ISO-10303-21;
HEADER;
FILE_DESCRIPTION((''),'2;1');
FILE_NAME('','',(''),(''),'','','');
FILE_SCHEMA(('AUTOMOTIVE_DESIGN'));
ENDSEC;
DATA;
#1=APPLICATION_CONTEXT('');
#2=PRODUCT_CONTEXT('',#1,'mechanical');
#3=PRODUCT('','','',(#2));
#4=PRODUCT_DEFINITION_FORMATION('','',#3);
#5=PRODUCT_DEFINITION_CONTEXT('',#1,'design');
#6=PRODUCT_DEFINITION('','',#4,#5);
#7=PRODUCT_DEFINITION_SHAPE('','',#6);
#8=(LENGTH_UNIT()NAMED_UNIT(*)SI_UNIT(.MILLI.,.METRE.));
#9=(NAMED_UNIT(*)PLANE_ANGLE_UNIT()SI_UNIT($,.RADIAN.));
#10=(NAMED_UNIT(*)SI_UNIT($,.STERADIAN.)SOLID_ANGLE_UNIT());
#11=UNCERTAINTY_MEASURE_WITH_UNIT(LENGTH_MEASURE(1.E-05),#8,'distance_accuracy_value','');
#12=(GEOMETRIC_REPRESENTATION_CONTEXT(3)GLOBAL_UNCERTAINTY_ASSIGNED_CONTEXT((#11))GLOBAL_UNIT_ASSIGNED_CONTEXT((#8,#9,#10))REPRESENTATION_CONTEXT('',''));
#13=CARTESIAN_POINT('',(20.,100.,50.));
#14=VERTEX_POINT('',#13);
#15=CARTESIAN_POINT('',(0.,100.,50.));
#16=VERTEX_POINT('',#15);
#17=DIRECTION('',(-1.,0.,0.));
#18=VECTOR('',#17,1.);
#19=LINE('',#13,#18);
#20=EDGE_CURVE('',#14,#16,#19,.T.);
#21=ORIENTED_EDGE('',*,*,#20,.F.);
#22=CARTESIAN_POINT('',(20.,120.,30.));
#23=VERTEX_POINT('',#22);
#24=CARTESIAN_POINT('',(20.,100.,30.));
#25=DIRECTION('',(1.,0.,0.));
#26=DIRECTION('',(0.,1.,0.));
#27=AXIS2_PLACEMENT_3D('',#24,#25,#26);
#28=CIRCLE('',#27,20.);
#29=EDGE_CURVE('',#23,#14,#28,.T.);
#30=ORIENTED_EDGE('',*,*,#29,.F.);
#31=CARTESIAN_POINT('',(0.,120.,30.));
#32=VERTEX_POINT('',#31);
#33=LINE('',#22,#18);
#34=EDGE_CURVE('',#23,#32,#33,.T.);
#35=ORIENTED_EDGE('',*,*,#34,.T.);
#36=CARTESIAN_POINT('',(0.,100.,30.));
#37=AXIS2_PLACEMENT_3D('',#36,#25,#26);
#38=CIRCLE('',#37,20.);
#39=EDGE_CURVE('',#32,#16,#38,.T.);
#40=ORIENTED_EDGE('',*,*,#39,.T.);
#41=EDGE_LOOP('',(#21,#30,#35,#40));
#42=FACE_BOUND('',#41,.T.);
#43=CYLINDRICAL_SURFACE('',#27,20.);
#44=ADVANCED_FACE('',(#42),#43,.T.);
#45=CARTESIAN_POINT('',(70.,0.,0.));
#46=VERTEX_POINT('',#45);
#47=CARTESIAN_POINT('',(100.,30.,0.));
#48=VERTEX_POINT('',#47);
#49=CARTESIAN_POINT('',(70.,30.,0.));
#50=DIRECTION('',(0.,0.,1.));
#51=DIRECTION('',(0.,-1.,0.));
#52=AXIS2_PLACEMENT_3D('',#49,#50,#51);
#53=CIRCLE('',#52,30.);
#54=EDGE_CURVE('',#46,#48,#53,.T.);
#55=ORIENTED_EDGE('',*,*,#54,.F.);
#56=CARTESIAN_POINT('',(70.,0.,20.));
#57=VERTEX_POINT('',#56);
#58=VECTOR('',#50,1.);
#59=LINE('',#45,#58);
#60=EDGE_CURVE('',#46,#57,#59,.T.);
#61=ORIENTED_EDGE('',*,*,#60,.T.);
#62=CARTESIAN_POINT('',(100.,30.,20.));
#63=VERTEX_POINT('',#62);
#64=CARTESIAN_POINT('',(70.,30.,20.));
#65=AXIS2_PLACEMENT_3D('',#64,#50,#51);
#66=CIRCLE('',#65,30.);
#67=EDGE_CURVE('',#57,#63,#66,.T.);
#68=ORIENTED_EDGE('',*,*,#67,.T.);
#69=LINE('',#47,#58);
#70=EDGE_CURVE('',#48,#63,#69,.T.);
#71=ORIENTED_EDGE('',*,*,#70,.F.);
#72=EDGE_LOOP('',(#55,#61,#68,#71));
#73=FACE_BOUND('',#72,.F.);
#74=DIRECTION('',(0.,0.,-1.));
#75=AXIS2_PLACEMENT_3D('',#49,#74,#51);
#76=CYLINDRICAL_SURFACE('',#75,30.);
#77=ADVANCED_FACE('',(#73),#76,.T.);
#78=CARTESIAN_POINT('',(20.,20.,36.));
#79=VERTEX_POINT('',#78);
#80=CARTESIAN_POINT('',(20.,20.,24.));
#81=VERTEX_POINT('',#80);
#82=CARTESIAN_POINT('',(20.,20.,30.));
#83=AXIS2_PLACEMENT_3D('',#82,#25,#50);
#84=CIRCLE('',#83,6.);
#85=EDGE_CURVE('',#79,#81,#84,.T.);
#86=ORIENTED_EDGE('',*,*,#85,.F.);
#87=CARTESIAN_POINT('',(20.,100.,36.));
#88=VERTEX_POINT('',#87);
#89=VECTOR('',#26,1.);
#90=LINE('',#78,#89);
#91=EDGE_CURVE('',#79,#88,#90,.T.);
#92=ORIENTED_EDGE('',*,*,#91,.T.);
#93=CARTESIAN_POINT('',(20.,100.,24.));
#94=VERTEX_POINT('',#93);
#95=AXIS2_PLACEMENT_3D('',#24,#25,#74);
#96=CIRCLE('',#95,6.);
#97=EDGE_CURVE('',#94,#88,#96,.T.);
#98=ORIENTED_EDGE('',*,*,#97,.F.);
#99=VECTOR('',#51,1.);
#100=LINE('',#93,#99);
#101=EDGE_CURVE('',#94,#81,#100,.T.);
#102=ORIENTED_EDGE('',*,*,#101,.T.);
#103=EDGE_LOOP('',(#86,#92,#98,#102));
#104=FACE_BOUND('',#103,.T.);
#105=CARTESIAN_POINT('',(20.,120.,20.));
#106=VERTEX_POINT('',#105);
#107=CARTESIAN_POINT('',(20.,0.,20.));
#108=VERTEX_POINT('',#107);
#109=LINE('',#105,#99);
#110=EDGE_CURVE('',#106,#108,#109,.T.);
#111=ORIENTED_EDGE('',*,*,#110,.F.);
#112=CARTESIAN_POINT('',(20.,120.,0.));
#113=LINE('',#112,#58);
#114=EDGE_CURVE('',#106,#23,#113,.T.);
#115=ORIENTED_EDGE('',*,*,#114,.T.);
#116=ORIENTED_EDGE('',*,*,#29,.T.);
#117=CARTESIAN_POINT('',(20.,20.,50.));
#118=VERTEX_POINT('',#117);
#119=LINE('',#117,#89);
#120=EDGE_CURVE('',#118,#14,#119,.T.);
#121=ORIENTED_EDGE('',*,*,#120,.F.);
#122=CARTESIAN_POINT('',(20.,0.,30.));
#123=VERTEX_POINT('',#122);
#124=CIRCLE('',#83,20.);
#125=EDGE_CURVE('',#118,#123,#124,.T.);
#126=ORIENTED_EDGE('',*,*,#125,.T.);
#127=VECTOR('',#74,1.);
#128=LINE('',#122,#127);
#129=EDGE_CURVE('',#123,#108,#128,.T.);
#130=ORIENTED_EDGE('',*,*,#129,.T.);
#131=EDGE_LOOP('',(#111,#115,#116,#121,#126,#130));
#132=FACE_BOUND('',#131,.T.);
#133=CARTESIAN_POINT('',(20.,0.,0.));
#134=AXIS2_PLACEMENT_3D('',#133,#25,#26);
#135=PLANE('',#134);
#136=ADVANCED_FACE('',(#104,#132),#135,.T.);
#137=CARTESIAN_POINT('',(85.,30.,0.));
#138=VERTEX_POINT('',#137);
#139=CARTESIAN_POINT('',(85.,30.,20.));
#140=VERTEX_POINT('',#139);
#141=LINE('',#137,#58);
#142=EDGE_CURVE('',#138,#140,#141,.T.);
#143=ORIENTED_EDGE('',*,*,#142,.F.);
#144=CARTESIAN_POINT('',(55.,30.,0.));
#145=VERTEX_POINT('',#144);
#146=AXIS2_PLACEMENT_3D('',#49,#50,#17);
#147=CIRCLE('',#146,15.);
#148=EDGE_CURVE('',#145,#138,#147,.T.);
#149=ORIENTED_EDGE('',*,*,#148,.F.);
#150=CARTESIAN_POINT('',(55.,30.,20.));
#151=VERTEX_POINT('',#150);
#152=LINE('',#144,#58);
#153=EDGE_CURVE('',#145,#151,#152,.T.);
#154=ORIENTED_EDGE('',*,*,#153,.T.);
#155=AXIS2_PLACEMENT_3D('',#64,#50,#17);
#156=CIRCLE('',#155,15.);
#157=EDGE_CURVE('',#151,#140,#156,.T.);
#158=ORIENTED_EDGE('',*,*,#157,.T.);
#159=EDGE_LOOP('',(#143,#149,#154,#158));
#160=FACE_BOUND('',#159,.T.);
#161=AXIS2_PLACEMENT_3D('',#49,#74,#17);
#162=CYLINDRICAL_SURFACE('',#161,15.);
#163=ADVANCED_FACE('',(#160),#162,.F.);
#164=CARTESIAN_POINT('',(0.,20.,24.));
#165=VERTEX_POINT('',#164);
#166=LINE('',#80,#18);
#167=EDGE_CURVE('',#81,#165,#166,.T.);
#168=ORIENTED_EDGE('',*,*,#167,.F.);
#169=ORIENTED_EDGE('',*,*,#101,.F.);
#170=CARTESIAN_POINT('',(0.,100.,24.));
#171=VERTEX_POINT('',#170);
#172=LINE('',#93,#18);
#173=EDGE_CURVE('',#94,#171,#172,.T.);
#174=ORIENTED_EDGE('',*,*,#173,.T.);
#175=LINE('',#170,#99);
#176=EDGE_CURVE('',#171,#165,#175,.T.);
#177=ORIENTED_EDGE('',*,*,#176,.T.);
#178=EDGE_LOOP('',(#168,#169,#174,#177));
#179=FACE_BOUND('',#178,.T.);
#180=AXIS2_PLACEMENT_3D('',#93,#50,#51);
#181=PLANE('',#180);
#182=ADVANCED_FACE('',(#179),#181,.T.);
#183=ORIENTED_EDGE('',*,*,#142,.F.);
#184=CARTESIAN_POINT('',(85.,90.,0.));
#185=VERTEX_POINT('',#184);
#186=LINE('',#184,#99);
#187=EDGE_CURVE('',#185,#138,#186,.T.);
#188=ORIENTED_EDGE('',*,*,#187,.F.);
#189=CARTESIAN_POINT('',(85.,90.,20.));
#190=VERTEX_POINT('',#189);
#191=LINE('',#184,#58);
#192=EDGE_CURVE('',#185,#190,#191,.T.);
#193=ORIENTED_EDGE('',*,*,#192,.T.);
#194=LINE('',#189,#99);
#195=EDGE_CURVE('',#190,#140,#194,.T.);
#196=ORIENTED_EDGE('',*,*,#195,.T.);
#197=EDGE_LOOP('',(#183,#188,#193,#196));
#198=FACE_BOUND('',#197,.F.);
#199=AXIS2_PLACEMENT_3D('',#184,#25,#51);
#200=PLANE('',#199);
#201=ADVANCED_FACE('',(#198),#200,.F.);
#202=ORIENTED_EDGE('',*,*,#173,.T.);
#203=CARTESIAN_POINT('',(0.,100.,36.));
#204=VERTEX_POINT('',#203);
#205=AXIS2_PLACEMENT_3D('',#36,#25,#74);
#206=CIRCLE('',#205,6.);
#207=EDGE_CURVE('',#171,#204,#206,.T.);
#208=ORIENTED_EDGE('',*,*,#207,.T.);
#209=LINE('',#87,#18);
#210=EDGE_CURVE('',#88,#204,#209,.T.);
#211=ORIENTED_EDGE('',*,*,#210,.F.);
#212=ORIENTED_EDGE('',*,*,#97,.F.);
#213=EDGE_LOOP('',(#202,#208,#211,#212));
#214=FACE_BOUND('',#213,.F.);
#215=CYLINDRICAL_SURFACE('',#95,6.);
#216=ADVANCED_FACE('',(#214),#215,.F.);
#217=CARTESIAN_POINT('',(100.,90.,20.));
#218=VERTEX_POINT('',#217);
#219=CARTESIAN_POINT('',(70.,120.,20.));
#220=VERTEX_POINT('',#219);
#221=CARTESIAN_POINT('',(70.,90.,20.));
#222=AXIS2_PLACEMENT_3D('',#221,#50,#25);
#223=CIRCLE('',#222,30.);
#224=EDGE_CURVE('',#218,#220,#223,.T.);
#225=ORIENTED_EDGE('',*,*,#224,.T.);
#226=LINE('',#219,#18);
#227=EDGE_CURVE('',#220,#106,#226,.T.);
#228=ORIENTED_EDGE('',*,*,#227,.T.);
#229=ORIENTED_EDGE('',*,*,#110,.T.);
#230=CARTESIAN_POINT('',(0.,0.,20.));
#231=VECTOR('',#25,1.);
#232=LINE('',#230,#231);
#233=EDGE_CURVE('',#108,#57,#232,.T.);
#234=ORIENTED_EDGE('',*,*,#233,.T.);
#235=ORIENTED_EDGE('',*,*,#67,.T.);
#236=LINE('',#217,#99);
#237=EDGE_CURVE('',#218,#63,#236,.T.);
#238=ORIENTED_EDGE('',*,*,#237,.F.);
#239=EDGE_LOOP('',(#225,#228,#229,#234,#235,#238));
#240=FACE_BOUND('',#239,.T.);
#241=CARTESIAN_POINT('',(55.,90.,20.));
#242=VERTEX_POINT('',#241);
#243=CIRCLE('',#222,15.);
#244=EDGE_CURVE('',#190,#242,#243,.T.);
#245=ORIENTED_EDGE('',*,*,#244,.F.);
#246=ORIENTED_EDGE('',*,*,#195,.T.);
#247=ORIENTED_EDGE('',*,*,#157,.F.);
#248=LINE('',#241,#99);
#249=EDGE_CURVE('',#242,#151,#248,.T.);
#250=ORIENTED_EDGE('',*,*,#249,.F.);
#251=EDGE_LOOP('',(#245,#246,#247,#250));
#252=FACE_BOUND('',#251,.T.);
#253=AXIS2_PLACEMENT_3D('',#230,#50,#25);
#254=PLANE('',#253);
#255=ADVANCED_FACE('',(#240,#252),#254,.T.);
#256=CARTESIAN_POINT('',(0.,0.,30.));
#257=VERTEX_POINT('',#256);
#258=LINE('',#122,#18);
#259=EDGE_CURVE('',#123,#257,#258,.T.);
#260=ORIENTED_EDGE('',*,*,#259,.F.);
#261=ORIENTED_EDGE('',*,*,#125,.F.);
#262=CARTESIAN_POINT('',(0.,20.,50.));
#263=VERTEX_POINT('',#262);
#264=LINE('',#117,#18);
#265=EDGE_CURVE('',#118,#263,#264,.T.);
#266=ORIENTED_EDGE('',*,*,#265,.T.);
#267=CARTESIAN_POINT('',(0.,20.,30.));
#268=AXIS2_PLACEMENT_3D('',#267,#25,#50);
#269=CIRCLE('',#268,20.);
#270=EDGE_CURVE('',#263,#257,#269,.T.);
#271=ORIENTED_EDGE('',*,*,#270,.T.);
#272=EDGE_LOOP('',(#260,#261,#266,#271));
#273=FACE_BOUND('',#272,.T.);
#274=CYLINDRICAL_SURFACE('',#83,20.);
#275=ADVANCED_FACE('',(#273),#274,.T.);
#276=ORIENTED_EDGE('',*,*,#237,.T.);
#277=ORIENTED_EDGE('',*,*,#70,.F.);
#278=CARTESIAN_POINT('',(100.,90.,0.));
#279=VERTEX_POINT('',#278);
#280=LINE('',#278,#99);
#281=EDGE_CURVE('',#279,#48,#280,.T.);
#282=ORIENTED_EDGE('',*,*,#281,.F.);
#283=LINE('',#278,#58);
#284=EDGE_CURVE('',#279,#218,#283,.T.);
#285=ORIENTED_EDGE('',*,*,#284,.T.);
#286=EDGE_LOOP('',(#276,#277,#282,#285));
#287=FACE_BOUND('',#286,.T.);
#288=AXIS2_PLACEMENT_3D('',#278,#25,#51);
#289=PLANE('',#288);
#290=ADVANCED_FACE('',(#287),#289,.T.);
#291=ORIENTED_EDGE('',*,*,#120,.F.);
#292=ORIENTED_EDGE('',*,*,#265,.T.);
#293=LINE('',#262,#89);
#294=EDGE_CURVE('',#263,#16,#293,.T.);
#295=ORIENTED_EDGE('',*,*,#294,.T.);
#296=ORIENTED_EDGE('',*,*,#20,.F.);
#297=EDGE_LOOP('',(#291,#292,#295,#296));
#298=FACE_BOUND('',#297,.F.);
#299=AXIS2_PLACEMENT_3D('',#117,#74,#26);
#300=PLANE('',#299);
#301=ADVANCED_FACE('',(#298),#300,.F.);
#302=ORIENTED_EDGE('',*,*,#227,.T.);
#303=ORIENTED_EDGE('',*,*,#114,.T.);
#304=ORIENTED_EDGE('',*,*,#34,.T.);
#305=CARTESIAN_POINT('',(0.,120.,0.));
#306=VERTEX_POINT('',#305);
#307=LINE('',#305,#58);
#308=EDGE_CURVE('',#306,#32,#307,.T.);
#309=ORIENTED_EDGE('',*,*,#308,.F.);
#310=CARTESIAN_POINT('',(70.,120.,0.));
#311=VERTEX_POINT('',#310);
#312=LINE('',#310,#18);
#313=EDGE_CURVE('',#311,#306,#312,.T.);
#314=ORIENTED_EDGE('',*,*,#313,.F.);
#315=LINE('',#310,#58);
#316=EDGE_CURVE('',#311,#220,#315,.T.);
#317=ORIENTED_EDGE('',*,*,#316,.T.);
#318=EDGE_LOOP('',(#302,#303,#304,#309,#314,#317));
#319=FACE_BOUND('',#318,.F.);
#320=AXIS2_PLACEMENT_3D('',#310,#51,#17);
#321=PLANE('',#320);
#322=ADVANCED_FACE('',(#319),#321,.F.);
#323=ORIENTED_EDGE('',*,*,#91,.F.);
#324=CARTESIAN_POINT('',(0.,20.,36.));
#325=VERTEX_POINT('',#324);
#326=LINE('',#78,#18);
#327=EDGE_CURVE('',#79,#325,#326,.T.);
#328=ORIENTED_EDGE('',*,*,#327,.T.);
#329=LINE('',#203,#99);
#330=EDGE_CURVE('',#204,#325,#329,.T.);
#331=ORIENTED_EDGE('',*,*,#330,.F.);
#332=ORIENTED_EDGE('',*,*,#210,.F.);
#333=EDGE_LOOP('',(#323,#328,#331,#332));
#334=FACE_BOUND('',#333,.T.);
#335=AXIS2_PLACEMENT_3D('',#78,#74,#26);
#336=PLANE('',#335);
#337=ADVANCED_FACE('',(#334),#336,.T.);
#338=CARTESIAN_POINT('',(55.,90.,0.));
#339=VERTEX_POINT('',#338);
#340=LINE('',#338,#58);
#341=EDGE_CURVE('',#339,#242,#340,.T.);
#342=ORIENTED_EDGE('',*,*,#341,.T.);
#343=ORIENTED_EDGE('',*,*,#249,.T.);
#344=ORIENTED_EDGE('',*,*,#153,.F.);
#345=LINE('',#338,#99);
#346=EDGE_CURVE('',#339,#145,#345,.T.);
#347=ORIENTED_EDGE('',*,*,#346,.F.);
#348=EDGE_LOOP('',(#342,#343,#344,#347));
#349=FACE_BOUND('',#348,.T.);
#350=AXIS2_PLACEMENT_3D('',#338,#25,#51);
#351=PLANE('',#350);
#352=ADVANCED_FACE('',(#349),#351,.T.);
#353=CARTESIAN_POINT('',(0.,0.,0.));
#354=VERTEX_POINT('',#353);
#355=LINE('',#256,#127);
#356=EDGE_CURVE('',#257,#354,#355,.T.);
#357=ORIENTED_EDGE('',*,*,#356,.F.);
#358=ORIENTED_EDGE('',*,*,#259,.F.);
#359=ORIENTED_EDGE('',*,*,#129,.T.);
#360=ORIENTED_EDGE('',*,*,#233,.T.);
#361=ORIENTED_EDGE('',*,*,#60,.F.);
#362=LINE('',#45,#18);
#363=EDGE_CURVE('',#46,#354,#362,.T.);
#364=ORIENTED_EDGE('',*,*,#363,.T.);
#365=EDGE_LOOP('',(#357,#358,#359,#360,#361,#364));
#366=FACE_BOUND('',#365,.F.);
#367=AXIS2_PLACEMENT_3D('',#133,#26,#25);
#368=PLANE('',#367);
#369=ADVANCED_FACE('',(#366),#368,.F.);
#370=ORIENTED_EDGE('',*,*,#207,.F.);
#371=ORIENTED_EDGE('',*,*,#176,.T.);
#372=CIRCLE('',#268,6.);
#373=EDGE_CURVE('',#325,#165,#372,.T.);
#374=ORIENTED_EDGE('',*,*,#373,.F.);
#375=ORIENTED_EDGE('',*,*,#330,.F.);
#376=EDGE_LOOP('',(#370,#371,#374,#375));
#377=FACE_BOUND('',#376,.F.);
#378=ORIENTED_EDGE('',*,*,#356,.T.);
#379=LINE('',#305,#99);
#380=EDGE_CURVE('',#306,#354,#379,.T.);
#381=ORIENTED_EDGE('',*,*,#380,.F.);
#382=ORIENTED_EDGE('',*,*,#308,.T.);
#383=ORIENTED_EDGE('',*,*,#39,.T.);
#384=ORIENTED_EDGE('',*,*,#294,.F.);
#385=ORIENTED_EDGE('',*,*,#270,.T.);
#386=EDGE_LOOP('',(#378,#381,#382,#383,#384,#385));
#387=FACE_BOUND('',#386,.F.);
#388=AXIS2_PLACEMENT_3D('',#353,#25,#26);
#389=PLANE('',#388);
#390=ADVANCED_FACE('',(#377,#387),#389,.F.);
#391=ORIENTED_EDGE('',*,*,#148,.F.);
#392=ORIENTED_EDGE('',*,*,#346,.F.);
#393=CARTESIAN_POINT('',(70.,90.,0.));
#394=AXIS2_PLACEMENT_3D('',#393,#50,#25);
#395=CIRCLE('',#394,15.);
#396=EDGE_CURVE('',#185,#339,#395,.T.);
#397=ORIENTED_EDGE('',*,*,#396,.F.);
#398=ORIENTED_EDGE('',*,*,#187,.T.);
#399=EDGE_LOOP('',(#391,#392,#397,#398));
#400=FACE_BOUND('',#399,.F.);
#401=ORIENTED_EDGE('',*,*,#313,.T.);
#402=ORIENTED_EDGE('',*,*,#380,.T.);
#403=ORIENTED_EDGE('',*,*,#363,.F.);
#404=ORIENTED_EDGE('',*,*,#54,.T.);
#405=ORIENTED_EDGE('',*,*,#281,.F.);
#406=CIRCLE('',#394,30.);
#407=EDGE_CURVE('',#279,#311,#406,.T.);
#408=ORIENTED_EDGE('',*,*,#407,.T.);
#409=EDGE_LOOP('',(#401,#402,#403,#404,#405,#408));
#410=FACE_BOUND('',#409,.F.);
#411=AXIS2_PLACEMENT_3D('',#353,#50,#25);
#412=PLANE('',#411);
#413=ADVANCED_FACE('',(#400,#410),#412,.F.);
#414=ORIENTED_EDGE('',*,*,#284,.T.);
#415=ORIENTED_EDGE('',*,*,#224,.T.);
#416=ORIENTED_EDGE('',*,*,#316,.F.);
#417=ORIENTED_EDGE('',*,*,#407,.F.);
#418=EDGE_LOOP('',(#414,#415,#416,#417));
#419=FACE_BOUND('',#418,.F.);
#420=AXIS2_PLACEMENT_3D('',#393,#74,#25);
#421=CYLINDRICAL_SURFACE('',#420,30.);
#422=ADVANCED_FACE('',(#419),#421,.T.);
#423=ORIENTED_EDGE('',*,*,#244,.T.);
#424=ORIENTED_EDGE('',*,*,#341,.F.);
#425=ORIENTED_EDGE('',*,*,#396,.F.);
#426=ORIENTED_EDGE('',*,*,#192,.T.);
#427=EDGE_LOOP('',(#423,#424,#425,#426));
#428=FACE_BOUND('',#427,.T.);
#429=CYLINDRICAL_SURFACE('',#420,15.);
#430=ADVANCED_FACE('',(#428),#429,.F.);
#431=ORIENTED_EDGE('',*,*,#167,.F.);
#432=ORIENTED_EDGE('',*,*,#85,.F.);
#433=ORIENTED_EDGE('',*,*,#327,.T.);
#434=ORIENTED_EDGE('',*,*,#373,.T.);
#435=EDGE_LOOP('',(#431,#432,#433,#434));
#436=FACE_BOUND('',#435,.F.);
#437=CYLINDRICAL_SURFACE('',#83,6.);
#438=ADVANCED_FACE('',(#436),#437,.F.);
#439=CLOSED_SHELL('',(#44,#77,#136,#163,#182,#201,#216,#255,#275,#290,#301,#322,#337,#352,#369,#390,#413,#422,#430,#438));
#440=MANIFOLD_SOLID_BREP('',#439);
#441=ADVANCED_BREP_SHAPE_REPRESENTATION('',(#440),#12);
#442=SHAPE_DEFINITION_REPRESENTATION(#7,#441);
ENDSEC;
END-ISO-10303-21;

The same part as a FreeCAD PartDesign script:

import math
import FreeCAD as App
import Part
import Sketcher

doc = App.newDocument("Part")
params = doc.addObject("Spreadsheet::Sheet", "Params")
for row, (alias, value) in enumerate([
    ("sketch1_radius", "30 mm"),
    ("sketch1_radius2", "15 mm"),
    ("sketch1_height", "120 mm"),
    ("pad1_length", "20 mm"),
    ("sketch2_radius", "20 mm"),
    ("sketch2_radius2", "6 mm"),
    ("sketch2_width", "80 mm"),
    ("sketch2_height", "30 mm"),
    ("pad2_length", "20 mm"),
], start=1):
    params.set(f"A{row}", alias)
    params.set(f"B{row}", "=" + value)
    params.setAlias(f"B{row}", alias)

body = doc.addObject("PartDesign::Body", "Body")

# Sketch on XY plane
sketch1 = body.newObject("Sketcher::SketchObject", "Sketch")
sketch1.AttachmentSupport = (doc.getObject("XY_Plane"), [""])
sketch1.MapMode = "FlatFace"
sketch1.addGeometry([
    Part.LineSegment(App.Vector(20, 120, 0), App.Vector(20, 0, 0)),  # 0
    Part.LineSegment(App.Vector(20, 0, 0), App.Vector(70, 0, 0)),  # 1
    Part.ArcOfCircle(Part.Circle(App.Vector(70, 30, 0), App.Vector(0, 0, 1), 30), math.radians(-90), math.radians(0)),  # 2
    Part.LineSegment(App.Vector(100, 30, 0), App.Vector(100, 90, 0)),  # 3
    Part.ArcOfCircle(Part.Circle(App.Vector(70, 90, 0), App.Vector(0, 0, 1), 30), math.radians(0), math.radians(90)),  # 4
    Part.LineSegment(App.Vector(70, 120, 0), App.Vector(20, 120, 0)),  # 5
    Part.ArcOfCircle(Part.Circle(App.Vector(70, 90, 0), App.Vector(0, 0, 1), 15), math.radians(0), math.radians(180)),  # 6
    Part.LineSegment(App.Vector(85, 90, 0), App.Vector(85, 30, 0)),  # 7
    Part.ArcOfCircle(Part.Circle(App.Vector(70, 30, 0), App.Vector(0, 0, 1), 15), math.radians(180), math.radians(360)),  # 8
    Part.LineSegment(App.Vector(55, 30, 0), App.Vector(55, 90, 0)),  # 9
], False)
sketch1.addConstraint([
    Sketcher.Constraint("Coincident", 0, 2, 1, 1),
    Sketcher.Constraint("Tangent", 1, 2, 2, 1),
    Sketcher.Constraint("Tangent", 2, 2, 3, 1),
    Sketcher.Constraint("Tangent", 3, 2, 4, 1),
    Sketcher.Constraint("Tangent", 4, 2, 5, 1),
    Sketcher.Constraint("Coincident", 5, 2, 0, 1),
    Sketcher.Constraint("Tangent", 6, 1, 7, 1),
    Sketcher.Constraint("Tangent", 7, 2, 8, 2),
    Sketcher.Constraint("Tangent", 8, 1, 9, 1),
    Sketcher.Constraint("Tangent", 9, 2, 6, 2),
    Sketcher.Constraint("Vertical", 0),
    Sketcher.Constraint("Horizontal", 1),
    Sketcher.Constraint("Vertical", 3),
    Sketcher.Constraint("Horizontal", 5),
    Sketcher.Constraint("Vertical", 7),
    Sketcher.Constraint("Vertical", 9),
    Sketcher.Constraint("Coincident", 6, 3, 4, 3),
    Sketcher.Constraint("Coincident", 8, 3, 2, 3),
    Sketcher.Constraint("PointOnObject", 0, 2, -1),
    Sketcher.Constraint("Radius", 2, 30.0),
    Sketcher.Constraint("Radius", 6, 15.0),
    Sketcher.Constraint("DistanceY", 0, 2, 0, 1, 120.0),
    Sketcher.Constraint("DistanceX", -1, 1, 2, 3, 70.0),
    Sketcher.Constraint("DistanceX", -1, 1, 0, 2, 20.0),
])
sketch1.setExpression("Constraints[19]", "Params.sketch1_radius")
sketch1.setExpression("Constraints[20]", "Params.sketch1_radius2")
sketch1.setExpression("Constraints[21]", "Params.sketch1_height")
pad1 = body.newObject("PartDesign::Pad", "Pad")
pad1.Profile = sketch1
pad1.setExpression("Length", "Params.pad1_length")

# Sketch on YZ plane
sketch2 = body.newObject("Sketcher::SketchObject", "Sketch001")
sketch2.AttachmentSupport = (doc.getObject("YZ_Plane"), [""])
sketch2.MapMode = "FlatFace"
sketch2.AttachmentOffset = App.Placement(App.Vector(0, 0, 20), App.Rotation())
sketch2.addGeometry([
    Part.LineSegment(App.Vector(100, 50, 0), App.Vector(20, 50, 0)),  # 0
    Part.ArcOfCircle(Part.Circle(App.Vector(20, 30, 0), App.Vector(0, 0, 1), 20), math.radians(90), math.radians(180)),  # 1
    Part.LineSegment(App.Vector(0, 30, 0), App.Vector(0, 0, 0)),  # 2
    Part.LineSegment(App.Vector(0, 0, 0), App.Vector(120, 0, 0)),  # 3
    Part.LineSegment(App.Vector(120, 0, 0), App.Vector(120, 30, 0)),  # 4
    Part.ArcOfCircle(Part.Circle(App.Vector(100, 30, 0), App.Vector(0, 0, 1), 20), math.radians(0), math.radians(90)),  # 5
    Part.ArcOfCircle(Part.Circle(App.Vector(20, 30, 0), App.Vector(0, 0, 1), 6), math.radians(90), math.radians(270)),  # 6
    Part.LineSegment(App.Vector(20, 36, 0), App.Vector(100, 36, 0)),  # 7
    Part.ArcOfCircle(Part.Circle(App.Vector(100, 30, 0), App.Vector(0, 0, 1), 6), math.radians(-90), math.radians(90)),  # 8
    Part.LineSegment(App.Vector(100, 24, 0), App.Vector(20, 24, 0)),  # 9
], False)
sketch2.addConstraint([
    Sketcher.Constraint("Tangent", 0, 2, 1, 1),
    Sketcher.Constraint("Tangent", 1, 2, 2, 1),
    Sketcher.Constraint("Coincident", 2, 2, 3, 1),
    Sketcher.Constraint("Coincident", 3, 2, 4, 1),
    Sketcher.Constraint("Tangent", 4, 2, 5, 1),
    Sketcher.Constraint("Tangent", 5, 2, 0, 1),
    Sketcher.Constraint("Tangent", 6, 1, 7, 1),
    Sketcher.Constraint("Tangent", 7, 2, 8, 2),
    Sketcher.Constraint("Tangent", 8, 1, 9, 1),
    Sketcher.Constraint("Tangent", 9, 2, 6, 2),
    Sketcher.Constraint("Horizontal", 0),
    Sketcher.Constraint("Vertical", 2),
    Sketcher.Constraint("Horizontal", 3),
    Sketcher.Constraint("Vertical", 4),
    Sketcher.Constraint("Horizontal", 7),
    Sketcher.Constraint("Horizontal", 9),
    Sketcher.Constraint("Coincident", 2, 2, -1, 1),
    Sketcher.Constraint("Coincident", 6, 3, 1, 3),
    Sketcher.Constraint("Coincident", 8, 3, 5, 3),
    Sketcher.Constraint("Radius", 1, 20.0),
    Sketcher.Constraint("Radius", 6, 6.0),
    Sketcher.Constraint("DistanceX", 0, 2, 0, 1, 80.0),
    Sketcher.Constraint("DistanceY", 2, 2, 2, 1, 30.0),
])
sketch2.setExpression("Constraints[19]", "Params.sketch2_radius")
sketch2.setExpression("Constraints[20]", "Params.sketch2_radius2")
sketch2.setExpression("Constraints[21]", "Params.sketch2_width")
sketch2.setExpression("Constraints[22]", "Params.sketch2_height")
pad2 = body.newObject("PartDesign::Pad", "Pad001")
pad2.Profile = sketch2
pad2.setExpression("Length", "Params.pad2_length")
pad2.Reversed = True

doc.recompute()
